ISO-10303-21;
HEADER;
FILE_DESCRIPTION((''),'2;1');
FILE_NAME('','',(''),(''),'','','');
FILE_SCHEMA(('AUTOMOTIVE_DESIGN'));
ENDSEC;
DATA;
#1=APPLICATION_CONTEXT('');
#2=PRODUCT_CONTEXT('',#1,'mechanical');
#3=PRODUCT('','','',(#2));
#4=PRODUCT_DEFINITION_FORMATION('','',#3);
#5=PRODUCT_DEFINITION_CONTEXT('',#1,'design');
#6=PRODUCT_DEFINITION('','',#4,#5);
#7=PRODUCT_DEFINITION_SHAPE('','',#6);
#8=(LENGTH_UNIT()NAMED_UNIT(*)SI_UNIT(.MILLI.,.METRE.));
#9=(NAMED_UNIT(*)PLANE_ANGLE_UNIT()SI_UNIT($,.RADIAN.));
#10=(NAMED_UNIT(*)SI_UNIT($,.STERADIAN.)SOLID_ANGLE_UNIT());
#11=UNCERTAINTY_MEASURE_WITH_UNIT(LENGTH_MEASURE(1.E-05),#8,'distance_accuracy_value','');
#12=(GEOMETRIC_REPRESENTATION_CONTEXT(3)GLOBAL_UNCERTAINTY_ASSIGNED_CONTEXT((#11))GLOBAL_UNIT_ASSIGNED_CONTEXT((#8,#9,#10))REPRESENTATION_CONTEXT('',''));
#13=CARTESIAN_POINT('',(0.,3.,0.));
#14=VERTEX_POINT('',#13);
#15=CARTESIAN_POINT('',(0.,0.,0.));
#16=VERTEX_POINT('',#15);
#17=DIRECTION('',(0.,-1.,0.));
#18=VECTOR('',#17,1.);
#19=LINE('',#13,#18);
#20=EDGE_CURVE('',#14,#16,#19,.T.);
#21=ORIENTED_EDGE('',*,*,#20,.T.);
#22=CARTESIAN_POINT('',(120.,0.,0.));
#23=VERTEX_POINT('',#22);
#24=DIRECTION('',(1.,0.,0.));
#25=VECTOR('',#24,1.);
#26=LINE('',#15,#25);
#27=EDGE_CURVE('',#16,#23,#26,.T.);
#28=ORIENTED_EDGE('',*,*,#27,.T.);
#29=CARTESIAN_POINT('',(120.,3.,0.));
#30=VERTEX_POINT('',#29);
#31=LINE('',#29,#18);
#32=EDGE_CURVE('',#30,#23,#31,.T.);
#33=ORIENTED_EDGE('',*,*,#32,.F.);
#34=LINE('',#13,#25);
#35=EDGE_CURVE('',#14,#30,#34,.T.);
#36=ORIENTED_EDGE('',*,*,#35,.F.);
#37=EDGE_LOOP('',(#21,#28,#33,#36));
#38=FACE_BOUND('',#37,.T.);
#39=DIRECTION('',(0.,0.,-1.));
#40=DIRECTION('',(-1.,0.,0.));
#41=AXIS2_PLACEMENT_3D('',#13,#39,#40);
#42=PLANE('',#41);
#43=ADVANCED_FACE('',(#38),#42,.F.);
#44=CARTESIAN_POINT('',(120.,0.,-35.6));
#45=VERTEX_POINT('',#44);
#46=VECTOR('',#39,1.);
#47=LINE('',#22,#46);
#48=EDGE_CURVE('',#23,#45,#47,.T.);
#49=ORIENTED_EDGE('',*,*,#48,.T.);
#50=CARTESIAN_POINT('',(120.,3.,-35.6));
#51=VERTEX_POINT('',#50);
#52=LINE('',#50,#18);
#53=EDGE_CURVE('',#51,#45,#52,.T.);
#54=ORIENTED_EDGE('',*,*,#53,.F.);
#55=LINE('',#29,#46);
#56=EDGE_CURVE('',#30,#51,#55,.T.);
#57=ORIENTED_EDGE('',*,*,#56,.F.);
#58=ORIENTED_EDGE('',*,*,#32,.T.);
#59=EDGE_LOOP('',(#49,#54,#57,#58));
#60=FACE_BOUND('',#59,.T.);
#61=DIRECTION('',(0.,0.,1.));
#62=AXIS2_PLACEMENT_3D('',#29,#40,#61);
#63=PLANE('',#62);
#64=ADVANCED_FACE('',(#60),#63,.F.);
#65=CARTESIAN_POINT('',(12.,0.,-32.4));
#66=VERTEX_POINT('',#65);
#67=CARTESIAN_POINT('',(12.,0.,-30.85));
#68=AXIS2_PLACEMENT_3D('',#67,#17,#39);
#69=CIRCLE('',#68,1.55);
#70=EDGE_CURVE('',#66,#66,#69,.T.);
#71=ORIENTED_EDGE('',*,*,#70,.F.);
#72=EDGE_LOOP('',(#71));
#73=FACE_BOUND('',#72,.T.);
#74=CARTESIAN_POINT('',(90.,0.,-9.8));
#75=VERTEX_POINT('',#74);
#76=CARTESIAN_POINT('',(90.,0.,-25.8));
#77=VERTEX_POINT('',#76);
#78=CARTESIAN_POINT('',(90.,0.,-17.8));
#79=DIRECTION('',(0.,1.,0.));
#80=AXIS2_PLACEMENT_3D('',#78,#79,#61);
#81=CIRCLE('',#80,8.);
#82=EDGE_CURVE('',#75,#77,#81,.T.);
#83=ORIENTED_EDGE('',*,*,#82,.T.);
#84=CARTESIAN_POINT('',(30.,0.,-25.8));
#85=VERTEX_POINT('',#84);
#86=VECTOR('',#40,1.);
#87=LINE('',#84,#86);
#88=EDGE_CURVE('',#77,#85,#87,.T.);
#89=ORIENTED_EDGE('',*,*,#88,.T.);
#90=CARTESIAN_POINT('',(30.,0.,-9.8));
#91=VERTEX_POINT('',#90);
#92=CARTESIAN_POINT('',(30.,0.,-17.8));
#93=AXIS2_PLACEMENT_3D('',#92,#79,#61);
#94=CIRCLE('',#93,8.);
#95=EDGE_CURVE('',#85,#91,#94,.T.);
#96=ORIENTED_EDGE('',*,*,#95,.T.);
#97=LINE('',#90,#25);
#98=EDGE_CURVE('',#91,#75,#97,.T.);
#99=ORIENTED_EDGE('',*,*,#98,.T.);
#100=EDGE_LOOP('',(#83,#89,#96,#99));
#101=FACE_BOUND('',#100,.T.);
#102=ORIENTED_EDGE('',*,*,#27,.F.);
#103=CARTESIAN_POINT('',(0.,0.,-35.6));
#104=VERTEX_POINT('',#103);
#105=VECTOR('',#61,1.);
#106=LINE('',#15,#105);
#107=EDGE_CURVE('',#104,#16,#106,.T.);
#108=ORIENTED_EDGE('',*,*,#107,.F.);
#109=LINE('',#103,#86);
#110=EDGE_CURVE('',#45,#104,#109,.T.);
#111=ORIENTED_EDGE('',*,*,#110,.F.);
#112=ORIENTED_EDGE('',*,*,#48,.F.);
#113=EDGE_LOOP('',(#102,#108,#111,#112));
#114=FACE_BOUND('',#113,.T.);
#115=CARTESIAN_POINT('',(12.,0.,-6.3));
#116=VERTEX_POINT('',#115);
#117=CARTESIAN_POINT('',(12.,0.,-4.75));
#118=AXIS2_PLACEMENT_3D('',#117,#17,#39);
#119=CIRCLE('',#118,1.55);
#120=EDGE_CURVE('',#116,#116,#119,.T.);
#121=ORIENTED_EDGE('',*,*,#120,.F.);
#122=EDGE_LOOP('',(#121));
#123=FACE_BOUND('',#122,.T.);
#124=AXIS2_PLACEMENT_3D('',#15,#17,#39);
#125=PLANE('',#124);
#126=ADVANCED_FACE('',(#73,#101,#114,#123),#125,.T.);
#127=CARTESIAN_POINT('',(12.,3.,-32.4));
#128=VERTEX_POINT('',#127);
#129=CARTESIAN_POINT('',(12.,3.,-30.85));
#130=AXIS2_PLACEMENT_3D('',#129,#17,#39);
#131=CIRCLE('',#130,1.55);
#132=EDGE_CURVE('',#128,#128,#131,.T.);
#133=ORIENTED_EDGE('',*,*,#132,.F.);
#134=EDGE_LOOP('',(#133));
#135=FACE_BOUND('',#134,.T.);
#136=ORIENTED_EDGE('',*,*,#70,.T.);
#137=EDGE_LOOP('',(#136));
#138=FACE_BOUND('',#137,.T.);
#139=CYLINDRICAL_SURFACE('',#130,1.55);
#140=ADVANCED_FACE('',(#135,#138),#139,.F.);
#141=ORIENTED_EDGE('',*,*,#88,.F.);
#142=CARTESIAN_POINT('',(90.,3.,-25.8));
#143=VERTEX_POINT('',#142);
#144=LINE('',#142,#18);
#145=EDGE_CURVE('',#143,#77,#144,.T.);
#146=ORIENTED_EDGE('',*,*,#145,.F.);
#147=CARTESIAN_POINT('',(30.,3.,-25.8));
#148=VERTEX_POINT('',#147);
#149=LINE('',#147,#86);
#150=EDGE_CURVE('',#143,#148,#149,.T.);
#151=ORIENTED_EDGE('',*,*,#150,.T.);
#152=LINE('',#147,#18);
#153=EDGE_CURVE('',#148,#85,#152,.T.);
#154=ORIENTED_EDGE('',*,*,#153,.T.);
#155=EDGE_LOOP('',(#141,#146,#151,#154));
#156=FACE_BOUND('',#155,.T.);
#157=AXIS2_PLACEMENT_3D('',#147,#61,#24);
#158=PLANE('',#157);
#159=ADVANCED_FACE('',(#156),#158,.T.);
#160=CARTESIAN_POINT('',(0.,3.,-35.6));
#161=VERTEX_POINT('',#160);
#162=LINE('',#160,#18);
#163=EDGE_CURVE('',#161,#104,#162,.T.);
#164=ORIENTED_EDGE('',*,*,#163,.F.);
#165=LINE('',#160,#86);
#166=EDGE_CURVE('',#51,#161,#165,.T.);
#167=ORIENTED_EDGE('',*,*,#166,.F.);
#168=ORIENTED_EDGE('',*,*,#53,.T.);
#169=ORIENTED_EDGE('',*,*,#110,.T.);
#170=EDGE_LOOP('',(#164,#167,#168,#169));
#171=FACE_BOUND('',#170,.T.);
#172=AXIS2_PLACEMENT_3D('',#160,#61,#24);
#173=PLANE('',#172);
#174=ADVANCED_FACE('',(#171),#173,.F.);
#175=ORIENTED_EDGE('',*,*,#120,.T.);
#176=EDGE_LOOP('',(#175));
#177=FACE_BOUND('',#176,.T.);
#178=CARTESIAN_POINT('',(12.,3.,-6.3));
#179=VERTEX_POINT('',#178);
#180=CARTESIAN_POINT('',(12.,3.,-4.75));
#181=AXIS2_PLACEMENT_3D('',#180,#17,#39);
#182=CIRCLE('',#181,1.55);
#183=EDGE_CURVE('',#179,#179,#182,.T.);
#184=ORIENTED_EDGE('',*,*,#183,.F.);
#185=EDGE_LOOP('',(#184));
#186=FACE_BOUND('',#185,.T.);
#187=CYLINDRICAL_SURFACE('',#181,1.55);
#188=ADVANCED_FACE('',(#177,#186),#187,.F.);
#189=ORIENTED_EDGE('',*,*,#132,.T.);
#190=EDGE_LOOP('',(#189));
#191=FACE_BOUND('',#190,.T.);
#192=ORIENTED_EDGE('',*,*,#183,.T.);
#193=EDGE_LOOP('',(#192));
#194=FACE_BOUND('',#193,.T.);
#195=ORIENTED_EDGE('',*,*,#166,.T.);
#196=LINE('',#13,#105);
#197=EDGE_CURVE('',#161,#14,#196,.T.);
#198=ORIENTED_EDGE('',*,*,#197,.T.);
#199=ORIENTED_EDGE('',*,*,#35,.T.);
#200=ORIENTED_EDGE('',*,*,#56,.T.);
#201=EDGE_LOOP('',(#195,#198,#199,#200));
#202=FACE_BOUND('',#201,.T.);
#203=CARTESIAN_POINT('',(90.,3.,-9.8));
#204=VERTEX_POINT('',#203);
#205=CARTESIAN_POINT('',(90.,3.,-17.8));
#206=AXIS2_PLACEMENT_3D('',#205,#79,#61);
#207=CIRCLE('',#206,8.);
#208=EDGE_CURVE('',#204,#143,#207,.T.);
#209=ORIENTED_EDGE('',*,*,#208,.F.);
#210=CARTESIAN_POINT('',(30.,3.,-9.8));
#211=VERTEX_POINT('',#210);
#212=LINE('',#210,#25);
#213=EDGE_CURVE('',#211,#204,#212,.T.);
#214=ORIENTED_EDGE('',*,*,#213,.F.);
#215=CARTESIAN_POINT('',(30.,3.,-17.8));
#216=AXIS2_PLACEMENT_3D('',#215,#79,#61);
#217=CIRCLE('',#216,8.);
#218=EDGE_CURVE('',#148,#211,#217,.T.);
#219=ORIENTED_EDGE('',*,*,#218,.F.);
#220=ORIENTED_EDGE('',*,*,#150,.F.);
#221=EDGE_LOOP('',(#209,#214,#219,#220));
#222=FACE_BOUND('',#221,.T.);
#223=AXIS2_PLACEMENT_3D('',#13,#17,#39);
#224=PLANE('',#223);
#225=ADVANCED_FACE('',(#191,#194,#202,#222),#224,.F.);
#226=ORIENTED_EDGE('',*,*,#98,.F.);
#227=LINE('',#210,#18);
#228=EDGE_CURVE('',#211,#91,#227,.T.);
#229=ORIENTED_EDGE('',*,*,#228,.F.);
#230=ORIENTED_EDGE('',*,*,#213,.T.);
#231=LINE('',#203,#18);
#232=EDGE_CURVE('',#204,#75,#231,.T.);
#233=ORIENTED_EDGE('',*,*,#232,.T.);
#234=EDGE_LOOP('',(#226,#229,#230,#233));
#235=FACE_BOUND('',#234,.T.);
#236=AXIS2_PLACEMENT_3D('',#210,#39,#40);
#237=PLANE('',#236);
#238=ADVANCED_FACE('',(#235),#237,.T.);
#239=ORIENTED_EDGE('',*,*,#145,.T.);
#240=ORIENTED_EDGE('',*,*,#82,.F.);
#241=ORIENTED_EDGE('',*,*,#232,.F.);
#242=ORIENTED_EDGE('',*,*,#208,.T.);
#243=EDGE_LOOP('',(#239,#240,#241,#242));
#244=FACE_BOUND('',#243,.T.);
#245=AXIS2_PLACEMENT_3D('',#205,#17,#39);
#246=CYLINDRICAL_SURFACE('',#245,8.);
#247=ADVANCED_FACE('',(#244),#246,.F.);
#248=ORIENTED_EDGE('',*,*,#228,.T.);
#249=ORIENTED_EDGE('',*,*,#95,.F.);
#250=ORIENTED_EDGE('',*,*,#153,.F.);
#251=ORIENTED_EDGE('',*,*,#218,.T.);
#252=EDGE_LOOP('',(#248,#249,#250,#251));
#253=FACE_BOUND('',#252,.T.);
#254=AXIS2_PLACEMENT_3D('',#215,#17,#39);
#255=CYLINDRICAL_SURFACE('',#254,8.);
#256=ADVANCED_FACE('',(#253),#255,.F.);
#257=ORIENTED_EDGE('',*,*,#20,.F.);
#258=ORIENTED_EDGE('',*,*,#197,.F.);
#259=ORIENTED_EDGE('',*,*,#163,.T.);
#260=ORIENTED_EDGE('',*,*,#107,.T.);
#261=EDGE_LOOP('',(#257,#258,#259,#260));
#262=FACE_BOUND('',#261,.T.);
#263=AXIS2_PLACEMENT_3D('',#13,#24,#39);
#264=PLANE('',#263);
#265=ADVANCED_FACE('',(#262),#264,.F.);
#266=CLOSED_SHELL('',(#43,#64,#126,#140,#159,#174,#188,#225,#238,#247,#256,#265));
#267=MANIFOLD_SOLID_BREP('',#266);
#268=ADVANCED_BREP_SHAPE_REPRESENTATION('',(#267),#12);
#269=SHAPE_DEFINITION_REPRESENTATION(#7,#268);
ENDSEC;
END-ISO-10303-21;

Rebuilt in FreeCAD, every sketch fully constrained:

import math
import FreeCAD as App
import Part
import Sketcher
Q = App.Units.Quantity


def add_polygon(sketch, points):
    """Adds a closed chain of lines whose ends are joined by coincident constraints."""
    first, n = sketch.GeometryCount, len(points)
    for a, b in zip(points, points[1:] + points[:1]):
        sketch.addGeometry(Part.LineSegment(App.Vector(*a, 0), App.Vector(*b, 0)), False)
    for i in range(n):
        sketch.addConstraint(Sketcher.Constraint("Coincident", first + i, 2, first + (i + 1) % n, 1))

doc = App.newDocument("Part")
body = doc.addObject("PartDesign::Body", "Body")

sketch1 = body.newObject("Sketcher::SketchObject", "Sketch")
sketch1.AttachmentSupport = (doc.getObject("XZ_Plane"), [""])
sketch1.MapMode = "FlatFace"
add_polygon(sketch1, [(0, -36), (0, 0), (120, 0), (120, -36)])
sketch1.addGeometry(Part.ArcOfCircle(Part.Circle(App.Vector(30, -18, 0), App.Vector(0, 0, 1), 8), math.radians(90), math.radians(270)), False)
sketch1.addGeometry(Part.LineSegment(App.Vector(30, -26, 0), App.Vector(90, -26, 0)), False)
sketch1.addGeometry(Part.ArcOfCircle(Part.Circle(App.Vector(90, -18, 0), App.Vector(0, 0, 1), 8), math.radians(-90), math.radians(90)), False)
sketch1.addGeometry(Part.LineSegment(App.Vector(90, -10, 0), App.Vector(30, -10, 0)), False)
sketch1.addConstraint(Sketcher.Constraint("Tangent", 4, 2, 5, 1))
sketch1.addConstraint(Sketcher.Constraint("Tangent", 5, 2, 6, 1))
sketch1.addConstraint(Sketcher.Constraint("Tangent", 6, 2, 7, 1))
sketch1.addConstraint(Sketcher.Constraint("Tangent", 7, 2, 4, 1))
sketch1.addConstraint(Sketcher.Constraint("Vertical", 0))
sketch1.addConstraint(Sketcher.Constraint("Horizontal", 1))
sketch1.addConstraint(Sketcher.Constraint("Vertical", 2))
sketch1.addConstraint(Sketcher.Constraint("Horizontal", 3))
sketch1.addConstraint(Sketcher.Constraint("Horizontal", 5))
sketch1.addConstraint(Sketcher.Constraint("Horizontal", 7))
sketch1.addConstraint(Sketcher.Constraint("Coincident", 0, 2, -1, 1))
sketch1.addConstraint(Sketcher.Constraint("Radius", 4, Q("8 mm")))
sketch1.addConstraint(Sketcher.Constraint("DistanceX", 1, 1, 1, 2, Q("120 mm")))
sketch1.addConstraint(Sketcher.Constraint("DistanceX", 5, 1, 5, 2, Q("60 mm")))
sketch1.addConstraint(Sketcher.Constraint("DistanceY", 0, 1, 0, 2, Q("35.6 mm")))
sketch1.addConstraint(Sketcher.Constraint("DistanceX", -1, 1, 4, 3, Q("30 mm")))
sketch1.addConstraint(Sketcher.Constraint("DistanceY", 4, 3, -1, 1, Q("17.8 mm")))
pad1 = body.newObject("PartDesign::Pad", "Pad")
pad1.Profile = sketch1
pad1.Length = 3
pad1.Reversed = True

sketch2 = body.newObject("Sketcher::SketchObject", "Sketch001")
sketch2.AttachmentSupport = (doc.getObject("XZ_Plane"), [""])
sketch2.MapMode = "FlatFace"
sketch2.addGeometry(Part.Circle(App.Vector(138, -4.8, 0), App.Vector(0, 0, 1), 1.6), False)
sketch2.addGeometry(Part.Circle(App.Vector(138, -30.9, 0), App.Vector(0, 0, 1), 1.6), False)
sketch2.addGeometry(Part.Circle(App.Vector(12, -30.9, 0), App.Vector(0, 0, 1), 1.6), False)
sketch2.addGeometry(Part.Circle(App.Vector(12, -4.8, 0), App.Vector(0, 0, 1), 1.6), False)
sketch2.addConstraint(Sketcher.Constraint("Equal", 0, 1))
sketch2.addConstraint(Sketcher.Constraint("Equal", 1, 2))
sketch2.addConstraint(Sketcher.Constraint("Equal", 2, 3))
sketch2.addConstraint(Sketcher.Constraint("Horizontal", 1, 3, 2, 3))
sketch2.addConstraint(Sketcher.Constraint("Horizontal", 0, 3, 3, 3))
sketch2.addConstraint(Sketcher.Constraint("Vertical", 0, 3, 1, 3))
sketch2.addConstraint(Sketcher.Constraint("Vertical", 2, 3, 3, 3))
sketch2.addConstraint(Sketcher.Constraint("Diameter", 0, Q("3.1 mm")))
sketch2.addConstraint(Sketcher.Constraint("DistanceX", -1, 1, 0, 3, Q("138 mm")))
sketch2.addConstraint(Sketcher.Constraint("DistanceX", -1, 1, 2, 3, Q("12 mm")))
sketch2.addConstraint(Sketcher.Constraint("DistanceY", 1, 3, 0, 3, Q("26.1 mm")))
sketch2.addConstraint(Sketcher.Constraint("DistanceY", 0, 3, -1, 1, Q("4.75 mm")))
pocket1 = body.newObject("PartDesign::Pocket", "Pocket")
pocket1.Profile = sketch2
pocket1.Length = 3

doc.recompute()
